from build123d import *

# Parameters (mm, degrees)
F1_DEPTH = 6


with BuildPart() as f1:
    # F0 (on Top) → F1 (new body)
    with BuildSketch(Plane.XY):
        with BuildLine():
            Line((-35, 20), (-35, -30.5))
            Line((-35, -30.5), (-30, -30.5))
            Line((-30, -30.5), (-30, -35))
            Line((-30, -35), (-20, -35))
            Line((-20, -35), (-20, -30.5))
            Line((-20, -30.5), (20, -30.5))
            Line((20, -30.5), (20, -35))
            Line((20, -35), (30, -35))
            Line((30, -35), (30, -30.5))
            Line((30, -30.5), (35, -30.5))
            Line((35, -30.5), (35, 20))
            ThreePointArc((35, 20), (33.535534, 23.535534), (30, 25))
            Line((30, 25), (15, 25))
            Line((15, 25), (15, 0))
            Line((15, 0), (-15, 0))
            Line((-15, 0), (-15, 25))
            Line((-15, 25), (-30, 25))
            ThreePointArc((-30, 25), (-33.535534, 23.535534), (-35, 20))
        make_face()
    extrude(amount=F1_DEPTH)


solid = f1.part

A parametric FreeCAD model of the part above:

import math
import FreeCAD as App
import Part
import Sketcher
from FreeCAD import Vector

doc = App.newDocument("Part")
body = doc.addObject("PartDesign::Body", "Body")

sketch1 = doc.addObject("Sketcher::SketchObject", "Sketch")
body.addObject(sketch1)
sketch1.AttachmentSupport = (doc.XY_Plane, [""])
sketch1.MapMode = "FlatFace"
sketch1.addGeometry(Part.LineSegment(Vector(-35, 20, 0), Vector(-35, -30.5, 0)), False)
sketch1.addGeometry(Part.LineSegment(Vector(-35, -30.5, 0), Vector(-30, -30.5, 0)), False)
sketch1.addGeometry(Part.LineSegment(Vector(-30, -30.5, 0), Vector(-30, -35, 0)), False)
sketch1.addGeometry(Part.LineSegment(Vector(-30, -35, 0), Vector(-20, -35, 0)), False)
sketch1.addGeometry(Part.LineSegment(Vector(-20, -35, 0), Vector(-20, -30.5, 0)), False)
sketch1.addGeometry(Part.LineSegment(Vector(-20, -30.5, 0), Vector(20, -30.5, 0)), False)
sketch1.addGeometry(Part.LineSegment(Vector(20, -30.5, 0), Vector(20, -35, 0)), False)
sketch1.addGeometry(Part.LineSegment(Vector(20, -35, 0), Vector(30, -35, 0)), False)
sketch1.addGeometry(Part.LineSegment(Vector(30, -35, 0), Vector(30, -30.5, 0)), False)
sketch1.addGeometry(Part.LineSegment(Vector(30, -30.5, 0), Vector(35, -30.5, 0)), False)
sketch1.addGeometry(Part.LineSegment(Vector(35, -30.5, 0), Vector(35, 20, 0)), False)
sketch1.addGeometry(Part.ArcOfCircle(Part.Circle(Vector(30, 20, 0), Vector(0, 0, 1), 5), math.radians(0), math.radians(90)), False)
sketch1.addGeometry(Part.LineSegment(Vector(30, 25, 0), Vector(15, 25, 0)), False)
sketch1.addGeometry(Part.LineSegment(Vector(15, 25, 0), Vector(15, 0, 0)), False)
sketch1.addGeometry(Part.LineSegment(Vector(15, 0, 0), Vector(-15, 0, 0)), False)
sketch1.addGeometry(Part.LineSegment(Vector(-15, 0, 0), Vector(-15, 25, 0)), False)
sketch1.addGeometry(Part.LineSegment(Vector(-15, 25, 0), Vector(-30, 25, 0)), False)
sketch1.addGeometry(Part.ArcOfCircle(Part.Circle(Vector(-30, 20, 0), Vector(0, 0, 1), 5), math.radians(90), math.radians(180)), False)
sketch1.addConstraint(Sketcher.Constraint("Coincident", 0, 2, 1, 1))
sketch1.addConstraint(Sketcher.Constraint("Coincident", 1, 2, 2, 1))
sketch1.addConstraint(Sketcher.Constraint("Coincident", 2, 2, 3, 1))
sketch1.addConstraint(Sketcher.Constraint("Coincident", 3, 2, 4, 1))
sketch1.addConstraint(Sketcher.Constraint("Coincident", 4, 2, 5, 1))
sketch1.addConstraint(Sketcher.Constraint("Coincident", 5, 2, 6, 1))
sketch1.addConstraint(Sketcher.Constraint("Coincident", 6, 2, 7, 1))
sketch1.addConstraint(Sketcher.Constraint("Coincident", 7, 2, 8, 1))
sketch1.addConstraint(Sketcher.Constraint("Coincident", 8, 2, 9, 1))
sketch1.addConstraint(Sketcher.Constraint("Coincident", 9, 2, 10, 1))
sketch1.addConstraint(Sketcher.Constraint("Tangent", 10, 2, 11, 1))
sketch1.addConstraint(Sketcher.Constraint("Tangent", 11, 2, 12, 1))
sketch1.addConstraint(Sketcher.Constraint("Coincident", 12, 2, 13, 1))
sketch1.addConstraint(Sketcher.Constraint("Coincident", 13, 2, 14, 1))
sketch1.addConstraint(Sketcher.Constraint("Coincident", 14, 2, 15, 1))
sketch1.addConstraint(Sketcher.Constraint("Coincident", 15, 2, 16, 1))
sketch1.addConstraint(Sketcher.Constraint("Tangent", 16, 2, 17, 1))
sketch1.addConstraint(Sketcher.Constraint("Tangent", 17, 2, 0, 1))
sketch1.addConstraint(Sketcher.Constraint("Vertical", 0))
sketch1.addConstraint(Sketcher.Constraint("Horizontal", 1))
sketch1.addConstraint(Sketcher.Constraint("Vertical", 2))
sketch1.addConstraint(Sketcher.Constraint("Horizontal", 3))
sketch1.addConstraint(Sketcher.Constraint("Vertical", 4))
sketch1.addConstraint(Sketcher.Constraint("Horizontal", 5))
sketch1.addConstraint(Sketcher.Constraint("Vertical", 6))
sketch1.addConstraint(Sketcher.Constraint("Horizontal", 7))
sketch1.addConstraint(Sketcher.Constraint("Vertical", 8))
sketch1.addConstraint(Sketcher.Constraint("Horizontal", 9))
sketch1.addConstraint(Sketcher.Constraint("Vertical", 10))
sketch1.addConstraint(Sketcher.Constraint("Horizontal", 12))
sketch1.addConstraint(Sketcher.Constraint("Vertical", 13))
sketch1.addConstraint(Sketcher.Constraint("Horizontal", 14))
sketch1.addConstraint(Sketcher.Constraint("Vertical", 15))
sketch1.addConstraint(Sketcher.Constraint("Horizontal", 16))
sketch1.addConstraint(Sketcher.Constraint("Equal", 11, 17))
sketch1.addConstraint(Sketcher.Constraint("Symmetric", 13, 2, 14, 2, -1, 1))
sketch1.addConstraint(Sketcher.Constraint("Symmetric", 11, 3, 17, 3, -2))
sketch1.addConstraint(Sketcher.Constraint("Symmetric", 3, 2, 6, 2, -2))
sketch1.addConstraint(Sketcher.Constraint("Symmetric", 1, 2, 8, 2, -2))
sketch1.addConstraint(Sketcher.Constraint("Horizontal", 1, 2, 4, 2))
sketch1.addConstraint(Sketcher.Constraint("Vertical", 17, 3, 1, 2))
sketch1.addConstraint(Sketcher.Constraint("Radius", 11, 5.0))
sketch1.addConstraint(Sketcher.Constraint("DistanceX", 3, 1, 3, 2, 10.0))
sketch1.addConstraint(Sketcher.Constraint("DistanceX", 5, 1, 5, 2, 40.0))
sketch1.addConstraint(Sketcher.Constraint("DistanceX", 12, 2, 12, 1, 15.0))
sketch1.addConstraint(Sketcher.Constraint("DistanceY", 13, 2, 13, 1, 25.0))
sketch1.addConstraint(Sketcher.Constraint("DistanceY", 0, 2, 0, 1, 50.5))
sketch1.addConstraint(Sketcher.Constraint("DistanceY", 2, 2, 2, 1, 4.5))
pad1 = doc.addObject("PartDesign::Pad", "Pad")
body.addObject(pad1)
pad1.Profile = sketch1
pad1.Length = 6

doc.recompute()
